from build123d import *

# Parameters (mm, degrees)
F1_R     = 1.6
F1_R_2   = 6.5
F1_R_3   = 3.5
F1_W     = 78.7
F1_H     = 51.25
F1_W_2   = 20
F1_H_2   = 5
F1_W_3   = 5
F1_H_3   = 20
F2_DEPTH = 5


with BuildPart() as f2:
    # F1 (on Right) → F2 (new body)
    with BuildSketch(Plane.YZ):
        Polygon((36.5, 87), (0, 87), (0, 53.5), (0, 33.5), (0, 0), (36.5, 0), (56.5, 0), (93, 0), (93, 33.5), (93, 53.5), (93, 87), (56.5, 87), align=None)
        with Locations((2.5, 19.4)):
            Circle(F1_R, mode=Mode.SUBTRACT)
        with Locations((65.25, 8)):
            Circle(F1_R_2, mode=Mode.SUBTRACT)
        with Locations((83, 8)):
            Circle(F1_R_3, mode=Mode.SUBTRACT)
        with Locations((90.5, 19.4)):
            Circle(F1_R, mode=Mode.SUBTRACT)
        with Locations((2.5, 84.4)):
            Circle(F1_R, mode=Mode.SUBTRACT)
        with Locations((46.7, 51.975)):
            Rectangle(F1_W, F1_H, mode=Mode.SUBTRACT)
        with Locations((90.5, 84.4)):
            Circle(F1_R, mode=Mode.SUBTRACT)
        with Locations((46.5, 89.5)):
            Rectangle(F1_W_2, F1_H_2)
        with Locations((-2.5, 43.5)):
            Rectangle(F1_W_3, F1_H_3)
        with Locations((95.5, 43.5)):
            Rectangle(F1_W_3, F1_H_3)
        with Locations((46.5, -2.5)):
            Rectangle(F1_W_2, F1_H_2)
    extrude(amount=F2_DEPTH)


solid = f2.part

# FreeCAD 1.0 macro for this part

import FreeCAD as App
import Part
import Sketcher

V = App.Vector
Q = App.Units.Quantity

doc = App.newDocument("Part")
body = doc.addObject("PartDesign::Body", "Body")

sketch1 = body.newObject("Sketcher::SketchObject", "Sketch")
sketch1.AttachmentSupport = (doc.getObject("YZ_Plane"), [""])
sketch1.MapMode = "FlatFace"
sketch1.addGeometry([
    Part.LineSegment(V(0, 87, 0), V(0, 53.5, 0)),
    Part.LineSegment(V(0, 53.5, 0), V(-5, 53.5, 0)),
    Part.LineSegment(V(-5, 53.5, 0), V(-5, 33.5, 0)),
    Part.LineSegment(V(-5, 33.5, 0), V(0, 33.5, 0)),
    Part.LineSegment(V(0, 33.5, 0), V(0, 0, 0)),
    Part.LineSegment(V(0, 0, 0), V(36.5, 0, 0)),
    Part.LineSegment(V(36.5, 0, 0), V(36.5, -5, 0)),
    Part.LineSegment(V(36.5, -5, 0), V(56.5, -5, 0)),
    Part.LineSegment(V(56.5, -5, 0), V(56.5, 0, 0)),
    Part.LineSegment(V(56.5, 0, 0), V(93, 0, 0)),
    Part.LineSegment(V(93, 0, 0), V(93, 33.5, 0)),
    Part.LineSegment(V(93, 33.5, 0), V(98, 33.5, 0)),
    Part.LineSegment(V(98, 33.5, 0), V(98, 53.5, 0)),
    Part.LineSegment(V(98, 53.5, 0), V(93, 53.5, 0)),
    Part.LineSegment(V(93, 53.5, 0), V(93, 87, 0)),
    Part.LineSegment(V(93, 87, 0), V(56.5, 87, 0)),
    Part.LineSegment(V(56.5, 87, 0), V(56.5, 92, 0)),
    Part.LineSegment(V(56.5, 92, 0), V(36.5, 92, 0)),
    Part.LineSegment(V(36.5, 92, 0), V(36.5, 87, 0)),
    Part.LineSegment(V(36.5, 87, 0), V(0, 87, 0)),
    Part.Circle(V(2.5, 19.4, 0), V(0, 0, 1), 1.6),
    Part.Circle(V(65.25, 8, 0), V(0, 0, 1), 6.5),
    Part.Circle(V(83, 8, 0), V(0, 0, 1), 3.5),
    Part.Circle(V(90.5, 19.4, 0), V(0, 0, 1), 1.6),
    Part.Circle(V(2.5, 84.4, 0), V(0, 0, 1), 1.6),
    Part.LineSegment(V(86.05, 26.35, 0), V(7.35, 26.35, 0)),
    Part.LineSegment(V(7.35, 26.35, 0), V(7.35, 77.6, 0)),
    Part.LineSegment(V(7.35, 77.6, 0), V(86.05, 77.6, 0)),
    Part.LineSegment(V(86.05, 77.6, 0), V(86.05, 26.35, 0)),
    Part.Circle(V(90.5, 84.4, 0), V(0, 0, 1), 1.6),
], False)
sketch1.addConstraint([
    Sketcher.Constraint("Coincident", 0, 2, 1, 1),
    Sketcher.Constraint("Coincident", 1, 2, 2, 1),
    Sketcher.Constraint("Coincident", 2, 2, 3, 1),
    Sketcher.Constraint("Coincident", 3, 2, 4, 1),
    Sketcher.Constraint("Coincident", 4, 2, 5, 1),
    Sketcher.Constraint("Coincident", 5, 2, 6, 1),
    Sketcher.Constraint("Coincident", 6, 2, 7, 1),
    Sketcher.Constraint("Coincident", 7, 2, 8, 1),
    Sketcher.Constraint("Coincident", 8, 2, 9, 1),
    Sketcher.Constraint("Coincident", 9, 2, 10, 1),
    Sketcher.Constraint("Coincident", 10, 2, 11, 1),
    Sketcher.Constraint("Coincident", 11, 2, 12, 1),
    Sketcher.Constraint("Coincident", 12, 2, 13, 1),
    Sketcher.Constraint("Coincident", 13, 2, 14, 1),
    Sketcher.Constraint("Coincident", 14, 2, 15, 1),
    Sketcher.Constraint("Coincident", 15, 2, 16, 1),
    Sketcher.Constraint("Coincident", 16, 2, 17, 1),
    Sketcher.Constraint("Coincident", 17, 2, 18, 1),
    Sketcher.Constraint("Coincident", 18, 2, 19, 1),
    Sketcher.Constraint("Coincident", 19, 2, 0, 1),
    Sketcher.Constraint("Coincident", 25, 2, 26, 1),
    Sketcher.Constraint("Coincident", 26, 2, 27, 1),
    Sketcher.Constraint("Coincident", 27, 2, 28, 1),
    Sketcher.Constraint("Coincident", 28, 2, 25, 1),
    Sketcher.Constraint("Vertical", 0),
    Sketcher.Constraint("Horizontal", 1),
    Sketcher.Constraint("Vertical", 2),
    Sketcher.Constraint("Horizontal", 3),
    Sketcher.Constraint("Vertical", 4),
    Sketcher.Constraint("Horizontal", 5),
    Sketcher.Constraint("Vertical", 6),
    Sketcher.Constraint("Horizontal", 7),
    Sketcher.Constraint("Vertical", 8),
    Sketcher.Constraint("Horizontal", 9),
    Sketcher.Constraint("Vertical", 10),
    Sketcher.Constraint("Horizontal", 11),
    Sketcher.Constraint("Vertical", 12),
    Sketcher.Constraint("Horizontal", 13),
    Sketcher.Constraint("Vertical", 14),
    Sketcher.Constraint("Horizontal", 15),
    Sketcher.Constraint("Vertical", 16),
    Sketcher.Constraint("Horizontal", 17),
    Sketcher.Constraint("Vertical", 18),
    Sketcher.Constraint("Horizontal", 19),
    Sketcher.Constraint("Horizontal", 25),
    Sketcher.Constraint("Vertical", 26),
    Sketcher.Constraint("Horizontal", 27),
    Sketcher.Constraint("Vertical", 28),
    Sketcher.Constraint("Coincident", 4, 2, -1, 1),
    Sketcher.Constraint("Equal", 20, 23),
    Sketcher.Constraint("Equal", 23, 24),
    Sketcher.Constraint("Equal", 24, 29),
    Sketcher.Constraint("PointOnObject", 0, 2, -2),
    Sketcher.Constraint("PointOnObject", 8, 2, -1),
    Sketcher.Constraint("Horizontal", 21, 3, 22, 3),
    Sketcher.Constraint("Horizontal", 20, 3, 23, 3),
    Sketcher.Constraint("Horizontal", 24, 3, 29, 3),
    Sketcher.Constraint("Horizontal", 3, 2, 10, 2),
    Sketcher.Constraint("Horizontal", 1, 2, 12, 2),
    Sketcher.Constraint("Horizontal", 15, 2, 18, 2),
    Sketcher.Constraint("Vertical", 20, 3, 24, 3),
    Sketcher.Constraint("Vertical", 23, 3, 29, 3),
    Sketcher.Constraint("Vertical", 10, 2, 13, 2),
    Sketcher.Constraint("Vertical", 8, 2, 15, 2),
    Sketcher.Constraint("Vertical", 6, 2, 17, 2),
    Sketcher.Constraint("Equal", 5, 9),
    Sketcher.Constraint("Equal", 3, 11),
    Sketcher.Constraint("Equal", 17, 2),
    Sketcher.Constraint("Equal", 0, 4),
    Sketcher.Constraint("Equal", 13, 6),
    Sketcher.Constraint("Equal", 8, 16),
    Sketcher.Constraint("Diameter", 21, Q("13 mm")),
    Sketcher.Constraint("Diameter", 22, Q("7 mm")),
    Sketcher.Constraint("Diameter", 20, Q("3.2 mm")),
    Sketcher.Constraint("DistanceX", 1, 2, 1, 1, Q("5 mm")),
    Sketcher.Constraint("DistanceX", 7, 1, 7, 2, Q("20 mm")),
    Sketcher.Constraint("DistanceX", 5, 1, 5, 2, Q("36.5 mm")),
    Sketcher.Constraint("DistanceX", 25, 2, 25, 1, Q("78.7 mm")),
    Sketcher.Constraint("DistanceY", 0, 2, 0, 1, Q("33.5 mm")),
    Sketcher.Constraint("DistanceY", -1, 1, 21, 3, Q("8 mm")),
    Sketcher.Constraint("DistanceX", -1, 1, 22, 3, Q("83 mm")),
    Sketcher.Constraint("DistanceX", 20, 3, 23, 3, Q("88 mm")),
    Sketcher.Constraint("DistanceY", 20, 3, 24, 3, Q("65 mm")),
    Sketcher.Constraint("DistanceX", 20, 3, 5, 2, Q("34 mm")),
    Sketcher.Constraint("DistanceY", 26, 1, 26, 2, Q("51.25 mm")),
    Sketcher.Constraint("DistanceY", -1, 1, 20, 3, Q("19.4 mm")),
    Sketcher.Constraint("DistanceY", -1, 1, 26, 2, Q("77.6 mm")),
    Sketcher.Constraint("DistanceX", -1, 1, 21, 3, Q("65.25 mm")),
    Sketcher.Constraint("DistanceX", -1, 1, 25, 2, Q("7.35 mm")),
])
pad1 = body.newObject("PartDesign::Pad", "Pad")
pad1.Profile = sketch1
pad1.Length = 5

doc.recompute()
